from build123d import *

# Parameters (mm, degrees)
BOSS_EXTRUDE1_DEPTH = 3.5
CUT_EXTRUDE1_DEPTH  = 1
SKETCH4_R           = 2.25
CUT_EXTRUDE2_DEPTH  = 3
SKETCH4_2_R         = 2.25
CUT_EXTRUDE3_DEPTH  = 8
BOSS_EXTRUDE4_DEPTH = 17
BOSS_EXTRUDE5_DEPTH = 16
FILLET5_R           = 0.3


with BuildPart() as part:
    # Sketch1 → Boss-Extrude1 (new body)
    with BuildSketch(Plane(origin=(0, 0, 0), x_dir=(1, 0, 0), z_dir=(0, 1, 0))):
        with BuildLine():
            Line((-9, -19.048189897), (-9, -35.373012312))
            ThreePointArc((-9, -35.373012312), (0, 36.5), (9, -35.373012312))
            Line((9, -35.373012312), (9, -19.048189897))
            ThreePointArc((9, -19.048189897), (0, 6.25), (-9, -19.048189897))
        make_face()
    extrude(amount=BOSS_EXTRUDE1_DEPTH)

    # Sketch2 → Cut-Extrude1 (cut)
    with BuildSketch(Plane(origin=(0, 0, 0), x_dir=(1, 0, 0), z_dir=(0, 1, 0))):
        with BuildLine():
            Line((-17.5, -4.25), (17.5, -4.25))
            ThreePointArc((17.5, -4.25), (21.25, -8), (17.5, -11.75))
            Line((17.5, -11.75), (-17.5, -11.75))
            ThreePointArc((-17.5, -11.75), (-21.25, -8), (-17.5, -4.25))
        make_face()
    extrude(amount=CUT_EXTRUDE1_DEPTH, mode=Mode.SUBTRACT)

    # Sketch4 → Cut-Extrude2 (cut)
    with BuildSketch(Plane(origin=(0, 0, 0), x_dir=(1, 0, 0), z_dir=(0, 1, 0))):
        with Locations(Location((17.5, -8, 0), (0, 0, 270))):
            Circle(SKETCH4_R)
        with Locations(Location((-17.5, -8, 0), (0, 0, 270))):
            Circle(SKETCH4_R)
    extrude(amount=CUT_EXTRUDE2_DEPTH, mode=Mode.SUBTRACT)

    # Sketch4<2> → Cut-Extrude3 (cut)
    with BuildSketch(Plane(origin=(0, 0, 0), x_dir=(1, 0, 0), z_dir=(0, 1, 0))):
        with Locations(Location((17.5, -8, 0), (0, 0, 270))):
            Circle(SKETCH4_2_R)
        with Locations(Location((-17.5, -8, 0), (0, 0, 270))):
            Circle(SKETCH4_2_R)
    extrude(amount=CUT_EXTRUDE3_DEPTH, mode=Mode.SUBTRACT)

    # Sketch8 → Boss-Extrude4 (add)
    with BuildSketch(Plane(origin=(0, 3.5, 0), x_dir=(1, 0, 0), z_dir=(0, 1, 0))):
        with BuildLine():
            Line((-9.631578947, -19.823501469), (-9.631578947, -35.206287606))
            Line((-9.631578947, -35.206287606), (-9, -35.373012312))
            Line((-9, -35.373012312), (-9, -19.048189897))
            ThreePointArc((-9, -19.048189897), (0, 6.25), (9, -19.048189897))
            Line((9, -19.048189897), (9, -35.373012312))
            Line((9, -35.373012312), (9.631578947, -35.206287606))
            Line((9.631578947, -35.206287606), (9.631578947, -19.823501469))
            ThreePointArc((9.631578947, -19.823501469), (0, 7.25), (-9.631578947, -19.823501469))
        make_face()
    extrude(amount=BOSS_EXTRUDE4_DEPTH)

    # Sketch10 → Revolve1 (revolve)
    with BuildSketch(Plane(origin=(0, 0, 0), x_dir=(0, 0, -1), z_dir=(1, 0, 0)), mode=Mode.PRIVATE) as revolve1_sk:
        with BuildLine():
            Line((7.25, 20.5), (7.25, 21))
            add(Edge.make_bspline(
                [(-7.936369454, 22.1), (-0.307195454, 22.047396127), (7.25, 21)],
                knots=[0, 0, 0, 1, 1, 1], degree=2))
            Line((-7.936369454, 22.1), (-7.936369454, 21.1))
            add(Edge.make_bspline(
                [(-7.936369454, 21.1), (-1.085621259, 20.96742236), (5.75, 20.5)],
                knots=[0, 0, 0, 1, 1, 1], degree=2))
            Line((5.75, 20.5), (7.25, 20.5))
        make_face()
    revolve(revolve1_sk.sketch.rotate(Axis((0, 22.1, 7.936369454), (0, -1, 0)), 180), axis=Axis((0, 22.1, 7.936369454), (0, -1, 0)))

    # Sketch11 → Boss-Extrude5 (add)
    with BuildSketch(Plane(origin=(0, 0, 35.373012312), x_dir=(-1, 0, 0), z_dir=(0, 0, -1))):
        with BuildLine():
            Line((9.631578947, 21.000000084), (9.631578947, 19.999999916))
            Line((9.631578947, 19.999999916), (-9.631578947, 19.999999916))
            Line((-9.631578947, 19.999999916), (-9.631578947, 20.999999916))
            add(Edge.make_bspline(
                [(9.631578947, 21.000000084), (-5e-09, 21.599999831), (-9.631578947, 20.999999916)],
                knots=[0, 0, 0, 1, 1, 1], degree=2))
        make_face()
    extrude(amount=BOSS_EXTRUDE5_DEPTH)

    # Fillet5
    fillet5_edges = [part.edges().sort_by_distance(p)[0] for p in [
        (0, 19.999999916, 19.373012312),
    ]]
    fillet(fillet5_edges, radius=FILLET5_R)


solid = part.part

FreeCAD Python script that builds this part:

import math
import FreeCAD as App
import Part
import Sketcher
from FreeCAD import Vector
Q = App.Units.Quantity


def edges_at(feature, points):
    """Names of the edges that pass closest to the given points."""
    edges = feature.Shape.Edges
    near = lambda p: min(range(len(edges)), key=lambda i: edges[i].distToShape(Part.Vertex(*p))[0])
    return sorted({f"Edge{near(p) + 1}" for p in points})

doc = App.newDocument("Part")
params = doc.addObject("Spreadsheet::Sheet", "Params")
for row, (alias, value) in enumerate([
    ("sketch1_radius", "36.5 mm"),
    ("sketch1_radius2", "14.25 mm"),
    ("pad1_length", "3.5 mm"),
    ("sketch2_width", "35 mm"),
    ("sketch2_radius", "3.75 mm"),
    ("pocket1_length", "1 mm"),
    ("sketch3_diameter", "4.5 mm"),
    ("pocket2_length", "3 mm"),
    ("sketch4_diameter", "4.5 mm"),
    ("pocket3_length", "8 mm"),
    ("sketch5_radius", "14.25 mm"),
    ("sketch5_radius2", "15.25 mm"),
    ("pad2_length", "17 mm"),
    ("sketch6_width", "1.6 mm"),
    ("revolution_angle", "360 deg"),
    ("sketch7_height", "1 mm"),
    ("pad3_length", "16 mm"),
    ("fillet_radius", "0.3 mm"),
], start=1):
    params.set(f"A{row}", alias)
    params.set(f"B{row}", "=" + value)
    params.setAlias(f"B{row}", alias)

body = doc.addObject("PartDesign::Body", "Body")

# Sketch on XZ plane
sketch1 = body.newObject("Sketcher::SketchObject", "Sketch")
sketch1.AttachmentSupport = (doc.getObject("XZ_Plane"), [""])
sketch1.MapMode = "FlatFace"
sketch1.addGeometry([
    Part.LineSegment(Vector(-9, 35.373012, 0), Vector(-9, 19.04819, 0)),
    Part.ArcOfCircle(Part.Circle(Vector(0, 8, 0), Vector(0, 0, 1), 14.25), math.radians(129.166711), math.radians(410.833289)),
    Part.LineSegment(Vector(9, 19.04819, 0), Vector(9, 35.373012, 0)),
    Part.ArcOfCircle(Part.Circle(Vector(0, 0, 0), Vector(0, 0, 1), 36.5), math.radians(104.274951), math.radians(435.725049)),
], False)
sketch1.addConstraint([
    Sketcher.Constraint("Coincident", 0, 2, 1, 1),
    Sketcher.Constraint("Coincident", 1, 2, 2, 1),
    Sketcher.Constraint("Coincident", 2, 2, 3, 2),
    Sketcher.Constraint("Coincident", 3, 1, 0, 1),
    Sketcher.Constraint("Vertical", 0),
    Sketcher.Constraint("Vertical", 2),
    Sketcher.Constraint("Coincident", 3, 3, -1, 1),
    Sketcher.Constraint("Symmetric", 0, 2, 1, 2, -2),
    Sketcher.Constraint("Radius", 3, Q("36.5 mm")),
    Sketcher.Constraint("Radius", 1, Q("14.25 mm")),
    Sketcher.Constraint("DistanceY", -1, 1, 1, 3, Q("8 mm")),
    Sketcher.Constraint("DistanceX", 0, 2, -1, 1, Q("9 mm")),
])
sketch1.setExpression("Constraints[8]", "Params.sketch1_radius")
sketch1.setExpression("Constraints[9]", "Params.sketch1_radius2")
pad1 = body.newObject("PartDesign::Pad", "Pad")
pad1.Profile = sketch1
pad1.setExpression("Length", "Params.pad1_length")
pad1.Reversed = True

# Sketch on XZ plane
sketch2 = body.newObject("Sketcher::SketchObject", "Sketch001")
sketch2.AttachmentSupport = (doc.getObject("XZ_Plane"), [""])
sketch2.MapMode = "FlatFace"
sketch2.addGeometry([
    Part.LineSegment(Vector(17.5, 4.25, 0), Vector(-17.5, 4.25, 0)),
    Part.ArcOfCircle(Part.Circle(Vector(-17.5, 8, 0), Vector(0, 0, 1), 3.75), math.radians(90), math.radians(270)),
    Part.LineSegment(Vector(-17.5, 11.75, 0), Vector(17.5, 11.75, 0)),
    Part.ArcOfCircle(Part.Circle(Vector(17.5, 8, 0), Vector(0, 0, 1), 3.75), math.radians(-90), math.radians(90)),
], False)
sketch2.addConstraint([
    Sketcher.Constraint("Tangent", 0, 2, 1, 2),
    Sketcher.Constraint("Tangent", 1, 1, 2, 1),
    Sketcher.Constraint("Tangent", 2, 2, 3, 2),
    Sketcher.Constraint("Tangent", 3, 1, 0, 1),
    Sketcher.Constraint("Horizontal", 0),
    Sketcher.Constraint("Horizontal", 2),
    Sketcher.Constraint("DistanceX", 0, 2, 0, 1, Q("35 mm")),
    Sketcher.Constraint("Radius", 1, Q("3.75 mm")),
    Sketcher.Constraint("DistanceY", -1, 1, 1, 3, Q("8 mm")),
    Sketcher.Constraint("DistanceX", 1, 3, -1, 1, Q("17.5 mm")),
])
sketch2.setExpression("Constraints[6]", "Params.sketch2_width")
sketch2.setExpression("Constraints[7]", "Params.sketch2_radius")
pocket1 = body.newObject("PartDesign::Pocket", "Pocket")
pocket1.Profile = sketch2
pocket1.setExpression("Length", "Params.pocket1_length")

# Sketch on XZ plane
sketch3 = body.newObject("Sketcher::SketchObject", "Sketch002")
sketch3.AttachmentSupport = (doc.getObject("XZ_Plane"), [""])
sketch3.MapMode = "FlatFace"
sketch3.addGeometry([
    Part.Circle(Vector(17.5, 8, 0), Vector(0, 0, 1), 2.25),
    Part.Circle(Vector(-17.5, 8, 0), Vector(0, 0, 1), 2.25),
], False)
sketch3.addConstraint([
    Sketcher.Constraint("Equal", 0, 1),
    Sketcher.Constraint("Symmetric", 0, 3, 1, 3, -2),
    Sketcher.Constraint("Diameter", 0, Q("4.5 mm")),
    Sketcher.Constraint("DistanceY", -1, 1, 0, 3, Q("8 mm")),
    Sketcher.Constraint("DistanceX", 1, 3, 0, 3, Q("35 mm")),
])
sketch3.setExpression("Constraints[2]", "Params.sketch3_diameter")
pocket2 = body.newObject("PartDesign::Pocket", "Pocket001")
pocket2.Profile = sketch3
pocket2.setExpression("Length", "Params.pocket2_length")

# Sketch on XZ plane
sketch4 = body.newObject("Sketcher::SketchObject", "Sketch003")
sketch4.AttachmentSupport = (doc.getObject("XZ_Plane"), [""])
sketch4.MapMode = "FlatFace"
sketch4.addGeometry([
    Part.Circle(Vector(17.5, 8, 0), Vector(0, 0, 1), 2.25),
    Part.Circle(Vector(-17.5, 8, 0), Vector(0, 0, 1), 2.25),
], False)
sketch4.addConstraint([
    Sketcher.Constraint("Equal", 0, 1),
    Sketcher.Constraint("Symmetric", 0, 3, 1, 3, -2),
    Sketcher.Constraint("Diameter", 0, Q("4.5 mm")),
    Sketcher.Constraint("DistanceY", -1, 1, 0, 3, Q("8 mm")),
    Sketcher.Constraint("DistanceX", 1, 3, 0, 3, Q("35 mm")),
])
sketch4.setExpression("Constraints[2]", "Params.sketch4_diameter")
pocket3 = body.newObject("PartDesign::Pocket", "Pocket002")
pocket3.Profile = sketch4
pocket3.setExpression("Length", "Params.pocket3_length")

# Sketch on XZ plane
sketch5 = body.newObject("Sketcher::SketchObject", "Sketch004")
sketch5.AttachmentSupport = (doc.getObject("XZ_Plane"), [""])
sketch5.MapMode = "FlatFace"
sketch5.AttachmentOffset = App.Placement(Vector(0, 0, -3.5), App.Rotation())
sketch5.addGeometry([
    Part.LineSegment(Vector(-9.631579, 19.823501, 0), Vector(-9.631579, 35.206288, 0)),  # 0
    Part.LineSegment(Vector(-9.631579, 35.206288, 0), Vector(-9, 35.373012, 0)),  # 1
    Part.LineSegment(Vector(-9, 35.373012, 0), Vector(-9, 19.04819, 0)),  # 2
    Part.ArcOfCircle(Part.Circle(Vector(0, 8, 0), Vector(0, 0, 1), 14.25), math.radians(129.166711), math.radians(410.833289)),  # 3
    Part.LineSegment(Vector(9, 19.04819, 0), Vector(9, 35.373012, 0)),  # 4
    Part.LineSegment(Vector(9, 35.373012, 0), Vector(9.631579, 35.206288, 0)),  # 5
    Part.LineSegment(Vector(9.631579, 35.206288, 0), Vector(9.631579, 19.823501, 0)),  # 6
    Part.ArcOfCircle(Part.Circle(Vector(0, 8, 0), Vector(0, 0, 1), 15.25), math.radians(129.166711), math.radians(410.833289)),  # 7
], False)
sketch5.addConstraint([
    Sketcher.Constraint("Coincident", 0, 2, 1, 1),
    Sketcher.Constraint("Coincident", 1, 2, 2, 1),
    Sketcher.Constraint("Coincident", 2, 2, 3, 1),
    Sketcher.Constraint("Coincident", 3, 2, 4, 1),
    Sketcher.Constraint("Coincident", 4, 2, 5, 1),
    Sketcher.Constraint("Coincident", 5, 2, 6, 1),
    Sketcher.Constraint("Coincident", 6, 2, 7, 2),
    Sketcher.Constraint("Coincident", 7, 1, 0, 1),
    Sketcher.Constraint("Vertical", 0),
    Sketcher.Constraint("Vertical", 2),
    Sketcher.Constraint("Vertical", 4),
    Sketcher.Constraint("Vertical", 6),
    Sketcher.Constraint("Coincident", 7, 3, 3, 3),
    Sketcher.Constraint("Symmetric", 2, 2, 3, 2, -2),
    Sketcher.Constraint("Symmetric", 0, 2, 5, 2, -2),
    Sketcher.Constraint("Horizontal", 1, 2, 4, 2),
    Sketcher.Constraint("Radius", 3, Q("14.25 mm")),
    Sketcher.Constraint("Radius", 7, Q("15.25 mm")),
    Sketcher.Constraint("DistanceY", -1, 1, 3, 3, Q("8 mm")),
    Sketcher.Constraint("DistanceX", 1, 2, -1, 1, Q("9 mm")),
    Sketcher.Constraint("DistanceY", -1, 1, 6, 2, Q("19.823501 mm")),
    Sketcher.Constraint("DistanceY", 0, 1, 0, 2, Q("15.382786 mm")),
    Sketcher.Constraint("DistanceY", 2, 2, 2, 1, Q("16.324822 mm")),
])
sketch5.setExpression("Constraints[16]", "Params.sketch5_radius")
sketch5.setExpression("Constraints[17]", "Params.sketch5_radius2")
pad2 = body.newObject("PartDesign::Pad", "Pad001")
pad2.Profile = sketch5
pad2.setExpression("Length", "Params.pad2_length")
pad2.Reversed = True

# Sketch on YZ plane
sketch6 = body.newObject("Sketcher::SketchObject", "Sketch005")
sketch6.AttachmentSupport = (doc.getObject("YZ_Plane"), [""])
sketch6.MapMode = "FlatFace"
sketch6.addGeometry([
    Part.LineSegment(Vector(20.5, -7.25, 0), Vector(21, -7.25, 0)),  # 0
    Part.BSplineCurve([Vector(22.1, 7.936369, 0), Vector(22.047396, 0.307195, 0), Vector(21, -7.25, 0)], [3, 3], [0, 1], False, 2, [1, 1, 1], False),  # 1
    Part.LineSegment(Vector(22.1, 7.936369, 0), Vector(21.1, 7.936369, 0)),  # 2
    Part.BSplineCurve([Vector(21.1, 7.936369, 0), Vector(20.967422, 1.085621, 0), Vector(20.5, -5.75, 0)], [3, 3], [0, 1], False, 2, [1, 1, 1], False),  # 3
    Part.LineSegment(Vector(20.5, -5.75, 0), Vector(20.5, -7.25, 0)),  # 4
], False)
sketch6.addGeometry(Part.LineSegment(Vector(22.1, 7.936369, 0), Vector(20.5, 7.936369, 0)), True)  # axis
sketch6.addConstraint([
    Sketcher.Constraint("Block", 1),
    Sketcher.Constraint("Block", 3),
    Sketcher.Constraint("Coincident", 0, 2, 1, 2),
    Sketcher.Constraint("Coincident", 1, 1, 2, 1),
    Sketcher.Constraint("Coincident", 2, 2, 3, 1),
    Sketcher.Constraint("Coincident", 3, 2, 4, 1),
    Sketcher.Constraint("Coincident", 4, 2, 0, 1),
    Sketcher.Constraint("Horizontal", 0),
    Sketcher.Constraint("Vertical", 4),
    Sketcher.Constraint("Horizontal", 5),
    Sketcher.Constraint("Horizontal", 2, 2, 5, 1),
    Sketcher.Constraint("Vertical", 4, 2, 5, 2),
    Sketcher.Constraint("DistanceX", 5, 2, 5, 1, Q("1.6 mm")),
])
sketch6.setExpression("Constraints[12]", "Params.sketch6_width")
revolution = body.newObject("PartDesign::Revolution", "Revolution")
revolution.Profile = sketch6
revolution.ReferenceAxis = (sketch6, ["Axis0"])
revolution.setExpression("Angle", "Params.revolution_angle")

# Sketch on XY plane
sketch7 = body.newObject("Sketcher::SketchObject", "Sketch006")
sketch7.AttachmentSupport = (doc.getObject("XY_Plane"), [""])
sketch7.MapMode = "FlatFace"
sketch7.AttachmentOffset = App.Placement(Vector(0, 0, 35.373012), App.Rotation())
sketch7.addGeometry([
    Part.LineSegment(Vector(-9.631579, 20, 0), Vector(-9.631579, 21, 0)),
    Part.BSplineCurve([Vector(-9.631579, 21, 0), Vector(0, 21.6, 0), Vector(9.631579, 21, 0)], [3, 3], [0, 1], False, 2, [1, 1, 1], False),
    Part.LineSegment(Vector(9.631579, 21, 0), Vector(9.631579, 20, 0)),
    Part.LineSegment(Vector(9.631579, 20, 0), Vector(-9.631579, 20, 0)),
], False)
sketch7.addConstraint([
    Sketcher.Constraint("Block", 1),
    Sketcher.Constraint("Coincident", 0, 2, 1, 1),
    Sketcher.Constraint("Coincident", 1, 2, 2, 1),
    Sketcher.Constraint("Coincident", 2, 2, 3, 1),
    Sketcher.Constraint("Coincident", 3, 2, 0, 1),
    Sketcher.Constraint("Vertical", 0),
    Sketcher.Constraint("Vertical", 2),
    Sketcher.Constraint("Horizontal", 3),
    Sketcher.Constraint("DistanceY", 0, 1, 0, 2, Q("1 mm")),
])
sketch7.setExpression("Constraints[8]", "Params.sketch7_height")
pad3 = body.newObject("PartDesign::Pad", "Pad002")
pad3.Profile = sketch7
pad3.setExpression("Length", "Params.pad3_length")
pad3.Reversed = True
doc.recompute()

fillet = body.newObject("PartDesign::Fillet", "Fillet")
fillet.Base = (pad3, edges_at(pad3, [(0, 20, 19.373)]))
fillet.setExpression("Radius", "Params.fillet_radius")

doc.recompute()
